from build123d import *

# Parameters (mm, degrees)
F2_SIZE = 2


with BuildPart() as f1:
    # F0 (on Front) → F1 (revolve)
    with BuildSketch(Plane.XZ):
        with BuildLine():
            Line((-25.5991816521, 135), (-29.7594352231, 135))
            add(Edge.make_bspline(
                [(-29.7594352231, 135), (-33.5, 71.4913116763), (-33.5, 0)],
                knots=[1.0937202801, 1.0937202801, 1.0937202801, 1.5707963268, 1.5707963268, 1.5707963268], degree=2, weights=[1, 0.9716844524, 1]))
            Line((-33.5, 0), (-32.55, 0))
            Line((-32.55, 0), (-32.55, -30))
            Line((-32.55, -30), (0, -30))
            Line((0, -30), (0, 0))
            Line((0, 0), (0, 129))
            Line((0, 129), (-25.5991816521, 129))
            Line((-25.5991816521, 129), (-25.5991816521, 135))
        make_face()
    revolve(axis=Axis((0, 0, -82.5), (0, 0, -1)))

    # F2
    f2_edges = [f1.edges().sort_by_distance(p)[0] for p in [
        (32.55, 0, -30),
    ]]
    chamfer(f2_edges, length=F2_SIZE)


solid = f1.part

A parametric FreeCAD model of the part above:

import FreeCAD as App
import Part
import Sketcher
from FreeCAD import Vector
Q = App.Units.Quantity


def edges_at(feature, points):
    """Names of the edges that pass closest to the given points."""
    edges = feature.Shape.Edges
    near = lambda p: min(range(len(edges)), key=lambda i: edges[i].distToShape(Part.Vertex(*p))[0])
    return sorted({f"Edge{near(p) + 1}" for p in points})

doc = App.newDocument("Part")
body = doc.addObject("PartDesign::Body", "Body")

# Sketch on XZ plane
sketch1 = body.newObject("Sketcher::SketchObject", "Sketch")
sketch1.AttachmentSupport = (doc.getObject("XZ_Plane"), [""])
sketch1.MapMode = "FlatFace"
sketch1.addGeometry([
    Part.LineSegment(Vector(-25.599182, 135, 0), Vector(-29.759435, 135, 0)),  # 0
    Part.BSplineCurve([Vector(-29.759435, 135, 0), Vector(-33.5, 71.491312, 0), Vector(-33.5, 0, 0)], [3, 3], [1.09372028, 1.570796327], False, 2, [1, 0.971684452, 1], False),  # 1
    Part.LineSegment(Vector(-33.5, 0, 0), Vector(-32.55, 0, 0)),  # 2
    Part.LineSegment(Vector(-32.55, 0, 0), Vector(-32.55, -30, 0)),  # 3
    Part.LineSegment(Vector(-32.55, -30, 0), Vector(0, -30, 0)),  # 4
    Part.LineSegment(Vector(0, -30, 0), Vector(0, 129, 0)),  # 5
    Part.LineSegment(Vector(0, 129, 0), Vector(-25.599182, 129, 0)),  # 6
    Part.LineSegment(Vector(-25.599182, 129, 0), Vector(-25.599182, 135, 0)),  # 7
], False)
sketch1.addConstraint([
    Sketcher.Constraint("Block", 1),
    Sketcher.Constraint("Coincident", 0, 2, 1, 1),
    Sketcher.Constraint("Coincident", 1, 2, 2, 1),
    Sketcher.Constraint("Coincident", 2, 2, 3, 1),
    Sketcher.Constraint("Coincident", 3, 2, 4, 1),
    Sketcher.Constraint("Coincident", 4, 2, 5, 1),
    Sketcher.Constraint("Coincident", 5, 2, 6, 1),
    Sketcher.Constraint("Coincident", 6, 2, 7, 1),
    Sketcher.Constraint("Coincident", 7, 2, 0, 1),
    Sketcher.Constraint("Horizontal", 0),
    Sketcher.Constraint("Horizontal", 2),
    Sketcher.Constraint("Vertical", 3),
    Sketcher.Constraint("Horizontal", 4),
    Sketcher.Constraint("Vertical", 5),
    Sketcher.Constraint("Horizontal", 6),
    Sketcher.Constraint("Vertical", 7),
    Sketcher.Constraint("PointOnObject", 4, 2, -2),
    Sketcher.Constraint("DistanceY", 3, 2, 3, 1, Q("30 mm")),
    Sketcher.Constraint("DistanceY", 5, 1, 5, 2, Q("159 mm")),
    Sketcher.Constraint("DistanceX", 2, 1, 2, 2, Q("0.95 mm")),
    Sketcher.Constraint("DistanceX", 6, 2, 6, 1, Q("25.599182 mm")),
])
revolution = body.newObject("PartDesign::Revolution", "Revolution")
revolution.Profile = sketch1
revolution.ReferenceAxis = (sketch1, ["V_Axis"])
revolution.Angle = 360
doc.recompute()

chamfer = body.newObject("PartDesign::Chamfer", "Chamfer")
chamfer.Base = (revolution, edges_at(revolution, [(32.55, 0, -30)]))
chamfer.Size = 2

doc.recompute()
